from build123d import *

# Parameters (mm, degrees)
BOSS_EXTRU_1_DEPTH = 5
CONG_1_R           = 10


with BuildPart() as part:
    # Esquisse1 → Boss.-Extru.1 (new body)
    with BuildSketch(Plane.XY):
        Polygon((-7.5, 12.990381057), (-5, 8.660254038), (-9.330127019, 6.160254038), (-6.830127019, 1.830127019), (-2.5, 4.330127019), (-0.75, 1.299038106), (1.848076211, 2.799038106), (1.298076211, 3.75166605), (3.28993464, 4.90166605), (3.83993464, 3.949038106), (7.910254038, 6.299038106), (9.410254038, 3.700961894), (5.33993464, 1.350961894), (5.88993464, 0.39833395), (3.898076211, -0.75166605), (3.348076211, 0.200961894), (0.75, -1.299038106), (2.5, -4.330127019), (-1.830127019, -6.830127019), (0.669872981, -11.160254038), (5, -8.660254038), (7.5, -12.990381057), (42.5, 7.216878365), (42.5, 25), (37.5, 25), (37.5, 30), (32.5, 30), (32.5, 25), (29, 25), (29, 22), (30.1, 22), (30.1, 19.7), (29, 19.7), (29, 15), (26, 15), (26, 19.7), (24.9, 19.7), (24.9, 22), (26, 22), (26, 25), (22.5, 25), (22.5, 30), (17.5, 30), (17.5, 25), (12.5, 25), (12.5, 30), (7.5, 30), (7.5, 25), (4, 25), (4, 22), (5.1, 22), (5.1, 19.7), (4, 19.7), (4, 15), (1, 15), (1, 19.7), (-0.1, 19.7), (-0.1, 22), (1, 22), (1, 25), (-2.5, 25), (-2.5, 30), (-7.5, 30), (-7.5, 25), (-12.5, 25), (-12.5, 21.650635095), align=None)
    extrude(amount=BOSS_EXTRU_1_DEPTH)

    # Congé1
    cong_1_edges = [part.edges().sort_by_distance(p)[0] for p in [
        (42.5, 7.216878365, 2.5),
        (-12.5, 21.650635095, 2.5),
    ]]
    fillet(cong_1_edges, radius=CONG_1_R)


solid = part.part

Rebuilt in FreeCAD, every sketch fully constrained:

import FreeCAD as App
import Part
import Sketcher
from FreeCAD import Vector
Q = App.Units.Quantity


def edges_at(feature, points):
    """Names of the edges that pass closest to the given points."""
    edges = feature.Shape.Edges
    near = lambda p: min(range(len(edges)), key=lambda i: edges[i].distToShape(Part.Vertex(*p))[0])
    return sorted({f"Edge{near(p) + 1}" for p in points})

doc = App.newDocument("Part")
params = doc.addObject("Spreadsheet::Sheet", "Params")
for row, (alias, value) in enumerate([
    ("sketch1_width", "5 mm"),
    ("sketch1_width2", "3 mm"),
    ("sketch1_length", "3 mm"),
    ("sketch1_width3", "3.5 mm"),
    ("sketch1_width4", "1.1 mm"),
    ("pad1_length", "5 mm"),
    ("fillet_radius", "10 mm"),
], start=1):
    params.set(f"A{row}", alias)
    params.set(f"B{row}", "=" + value)
    params.setAlias(f"B{row}", alias)

body = doc.addObject("PartDesign::Body", "Body")

# Sketch on XY plane
sketch1 = doc.addObject("Sketcher::SketchObject", "Sketch")
body.addObject(sketch1)
sketch1.AttachmentSupport = (doc.XY_Plane, [""])
sketch1.MapMode = "FlatFace"
sketch1.addGeometry(Part.LineSegment(Vector(-5, 8.7, 0), Vector(-9.3, 6.2, 0)), False)
sketch1.addGeometry(Part.LineSegment(Vector(-9.3, 6.2, 0), Vector(-6.8, 1.8, 0)), False)
sketch1.addGeometry(Part.LineSegment(Vector(-6.8, 1.8, 0), Vector(-2.5, 4.3, 0)), False)
sketch1.addGeometry(Part.LineSegment(Vector(-2.5, 4.3, 0), Vector(-0.8, 1.3, 0)), False)
sketch1.addGeometry(Part.LineSegment(Vector(-0.8, 1.3, 0), Vector(1.8, 2.8, 0)), False)
sketch1.addGeometry(Part.LineSegment(Vector(1.8, 2.8, 0), Vector(1.3, 3.8, 0)), False)
sketch1.addGeometry(Part.LineSegment(Vector(1.3, 3.8, 0), Vector(3.3, 4.9, 0)), False)
sketch1.addGeometry(Part.LineSegment(Vector(3.3, 4.9, 0), Vector(3.8, 3.9, 0)), False)
sketch1.addGeometry(Part.LineSegment(Vector(3.8, 3.9, 0), Vector(7.9, 6.3, 0)), False)
sketch1.addGeometry(Part.LineSegment(Vector(7.9, 6.3, 0), Vector(9.4, 3.7, 0)), False)
sketch1.addGeometry(Part.LineSegment(Vector(9.4, 3.7, 0), Vector(5.3, 1.4, 0)), False)
sketch1.addGeometry(Part.LineSegment(Vector(5.3, 1.4, 0), Vector(5.9, 0.4, 0)), False)
sketch1.addGeometry(Part.LineSegment(Vector(5.9, 0.4, 0), Vector(3.9, -0.8, 0)), False)
sketch1.addGeometry(Part.LineSegment(Vector(3.9, -0.8, 0), Vector(3.3, 0.2, 0)), False)
sketch1.addGeometry(Part.LineSegment(Vector(3.3, 0.2, 0), Vector(0.8, -1.3, 0)), False)
sketch1.addGeometry(Part.LineSegment(Vector(0.8, -1.3, 0), Vector(2.5, -4.3, 0)), False)
sketch1.addGeometry(Part.LineSegment(Vector(2.5, -4.3, 0), Vector(-1.8, -6.8, 0)), False)
sketch1.addGeometry(Part.LineSegment(Vector(-1.8, -6.8, 0), Vector(0.7, -11.2, 0)), False)
sketch1.addGeometry(Part.LineSegment(Vector(0.7, -11.2, 0), Vector(5, -8.7, 0)), False)
sketch1.addGeometry(Part.LineSegment(Vector(5, -8.7, 0), Vector(7.5, -13, 0)), False)
sketch1.addGeometry(Part.LineSegment(Vector(7.5, -13, 0), Vector(42.5, 7.2, 0)), False)
sketch1.addGeometry(Part.LineSegment(Vector(42.5, 7.2, 0), Vector(42.5, 25, 0)), False)
sketch1.addGeometry(Part.LineSegment(Vector(42.5, 25, 0), Vector(37.5, 25, 0)), False)
sketch1.addGeometry(Part.LineSegment(Vector(37.5, 25, 0), Vector(37.5, 30, 0)), False)
sketch1.addGeometry(Part.LineSegment(Vector(37.5, 30, 0), Vector(32.5, 30, 0)), False)
sketch1.addGeometry(Part.LineSegment(Vector(32.5, 30, 0), Vector(32.5, 25, 0)), False)
sketch1.addGeometry(Part.LineSegment(Vector(32.5, 25, 0), Vector(29, 25, 0)), False)
sketch1.addGeometry(Part.LineSegment(Vector(29, 25, 0), Vector(29, 22, 0)), False)
sketch1.addGeometry(Part.LineSegment(Vector(29, 22, 0), Vector(30.1, 22, 0)), False)
sketch1.addGeometry(Part.LineSegment(Vector(30.1, 22, 0), Vector(30.1, 19.7, 0)), False)
sketch1.addGeometry(Part.LineSegment(Vector(30.1, 19.7, 0), Vector(29, 19.7, 0)), False)
sketch1.addGeometry(Part.LineSegment(Vector(29, 19.7, 0), Vector(29, 15, 0)), False)
sketch1.addGeometry(Part.LineSegment(Vector(29, 15, 0), Vector(26, 15, 0)), False)
sketch1.addGeometry(Part.LineSegment(Vector(26, 15, 0), Vector(26, 19.7, 0)), False)
sketch1.addGeometry(Part.LineSegment(Vector(26, 19.7, 0), Vector(24.9, 19.7, 0)), False)
sketch1.addGeometry(Part.LineSegment(Vector(24.9, 19.7, 0), Vector(24.9, 22, 0)), False)
sketch1.addGeometry(Part.LineSegment(Vector(24.9, 22, 0), Vector(26, 22, 0)), False)
sketch1.addGeometry(Part.LineSegment(Vector(26, 22, 0), Vector(26, 25, 0)), False)
sketch1.addGeometry(Part.LineSegment(Vector(26, 25, 0), Vector(22.5, 25, 0)), False)
sketch1.addGeometry(Part.LineSegment(Vector(22.5, 25, 0), Vector(22.5, 30, 0)), False)
sketch1.addGeometry(Part.LineSegment(Vector(22.5, 30, 0), Vector(17.5, 30, 0)), False)
sketch1.addGeometry(Part.LineSegment(Vector(17.5, 30, 0), Vector(17.5, 25, 0)), False)
sketch1.addGeometry(Part.LineSegment(Vector(17.5, 25, 0), Vector(12.5, 25, 0)), False)
sketch1.addGeometry(Part.LineSegment(Vector(12.5, 25, 0), Vector(12.5, 30, 0)), False)
sketch1.addGeometry(Part.LineSegment(Vector(12.5, 30, 0), Vector(7.5, 30, 0)), False)
sketch1.addGeometry(Part.LineSegment(Vector(7.5, 30, 0), Vector(7.5, 25, 0)), False)
sketch1.addGeometry(Part.LineSegment(Vector(7.5, 25, 0), Vector(4, 25, 0)), False)
sketch1.addGeometry(Part.LineSegment(Vector(4, 25, 0), Vector(4, 22, 0)), False)
sketch1.addGeometry(Part.LineSegment(Vector(4, 22, 0), Vector(5.1, 22, 0)), False)
sketch1.addGeometry(Part.LineSegment(Vector(5.1, 22, 0), Vector(5.1, 19.7, 0)), False)
sketch1.addGeometry(Part.LineSegment(Vector(5.1, 19.7, 0), Vector(4, 19.7, 0)), False)
sketch1.addGeometry(Part.LineSegment(Vector(4, 19.7, 0), Vector(4, 15, 0)), False)
sketch1.addGeometry(Part.LineSegment(Vector(4, 15, 0), Vector(1, 15, 0)), False)
sketch1.addGeometry(Part.LineSegment(Vector(1, 15, 0), Vector(1, 19.7, 0)), False)
sketch1.addGeometry(Part.LineSegment(Vector(1, 19.7, 0), Vector(-0.1, 19.7, 0)), False)
sketch1.addGeometry(Part.LineSegment(Vector(-0.1, 19.7, 0), Vector(-0.1, 22, 0)), False)
sketch1.addGeometry(Part.LineSegment(Vector(-0.1, 22, 0), Vector(1, 22, 0)), False)
sketch1.addGeometry(Part.LineSegment(Vector(1, 22, 0), Vector(1, 25, 0)), False)
sketch1.addGeometry(Part.LineSegment(Vector(1, 25, 0), Vector(-2.5, 25, 0)), False)
sketch1.addGeometry(Part.LineSegment(Vector(-2.5, 25, 0), Vector(-2.5, 30, 0)), False)
sketch1.addGeometry(Part.LineSegment(Vector(-2.5, 30, 0), Vector(-7.5, 30, 0)), False)
sketch1.addGeometry(Part.LineSegment(Vector(-7.5, 30, 0), Vector(-7.5, 25, 0)), False)
sketch1.addGeometry(Part.LineSegment(Vector(-7.5, 25, 0), Vector(-12.5, 25, 0)), False)
sketch1.addGeometry(Part.LineSegment(Vector(-12.5, 25, 0), Vector(-12.5, 21.7, 0)), False)
sketch1.addGeometry(Part.LineSegment(Vector(-12.5, 21.7, 0), Vector(-5, 8.7, 0)), False)
sketch1.addConstraint(Sketcher.Constraint("Coincident", 0, 2, 1, 1))
sketch1.addConstraint(Sketcher.Constraint("Coincident", 1, 2, 2, 1))
sketch1.addConstraint(Sketcher.Constraint("Coincident", 2, 2, 3, 1))
sketch1.addConstraint(Sketcher.Constraint("Coincident", 3, 2, 4, 1))
sketch1.addConstraint(Sketcher.Constraint("Coincident", 4, 2, 5, 1))
sketch1.addConstraint(Sketcher.Constraint("Coincident", 5, 2, 6, 1))
sketch1.addConstraint(Sketcher.Constraint("Coincident", 6, 2, 7, 1))
sketch1.addConstraint(Sketcher.Constraint("Coincident", 7, 2, 8, 1))
sketch1.addConstraint(Sketcher.Constraint("Coincident", 8, 2, 9, 1))
sketch1.addConstraint(Sketcher.Constraint("Coincident", 9, 2, 10, 1))
sketch1.addConstraint(Sketcher.Constraint("Coincident", 10, 2, 11, 1))
sketch1.addConstraint(Sketcher.Constraint("Coincident", 11, 2, 12, 1))
sketch1.addConstraint(Sketcher.Constraint("Coincident", 12, 2, 13, 1))
sketch1.addConstraint(Sketcher.Constraint("Coincident", 13, 2, 14, 1))
sketch1.addConstraint(Sketcher.Constraint("Coincident", 14, 2, 15, 1))
sketch1.addConstraint(Sketcher.Constraint("Coincident", 15, 2, 16, 1))
sketch1.addConstraint(Sketcher.Constraint("Coincident", 16, 2, 17, 1))
sketch1.addConstraint(Sketcher.Constraint("Coincident", 17, 2, 18, 1))
sketch1.addConstraint(Sketcher.Constraint("Coincident", 18, 2, 19, 1))
sketch1.addConstraint(Sketcher.Constraint("Coincident", 19, 2, 20, 1))
sketch1.addConstraint(Sketcher.Constraint("Coincident", 20, 2, 21, 1))
sketch1.addConstraint(Sketcher.Constraint("Coincident", 21, 2, 22, 1))
sketch1.addConstraint(Sketcher.Constraint("Coincident", 22, 2, 23, 1))
sketch1.addConstraint(Sketcher.Constraint("Coincident", 23, 2, 24, 1))
sketch1.addConstraint(Sketcher.Constraint("Coincident", 24, 2, 25, 1))
sketch1.addConstraint(Sketcher.Constraint("Coincident", 25, 2, 26, 1))
sketch1.addConstraint(Sketcher.Constraint("Coincident", 26, 2, 27, 1))
sketch1.addConstraint(Sketcher.Constraint("Coincident", 27, 2, 28, 1))
sketch1.addConstraint(Sketcher.Constraint("Coincident", 28, 2, 29, 1))
sketch1.addConstraint(Sketcher.Constraint("Coincident", 29, 2, 30, 1))
sketch1.addConstraint(Sketcher.Constraint("Coincident", 30, 2, 31, 1))
sketch1.addConstraint(Sketcher.Constraint("Coincident", 31, 2, 32, 1))
sketch1.addConstraint(Sketcher.Constraint("Coincident", 32, 2, 33, 1))
sketch1.addConstraint(Sketcher.Constraint("Coincident", 33, 2, 34, 1))
sketch1.addConstraint(Sketcher.Constraint("Coincident", 34, 2, 35, 1))
sketch1.addConstraint(Sketcher.Constraint("Coincident", 35, 2, 36, 1))
sketch1.addConstraint(Sketcher.Constraint("Coincident", 36, 2, 37, 1))
sketch1.addConstraint(Sketcher.Constraint("Coincident", 37, 2, 38, 1))
sketch1.addConstraint(Sketcher.Constraint("Coincident", 38, 2, 39, 1))
sketch1.addConstraint(Sketcher.Constraint("Coincident", 39, 2, 40, 1))
sketch1.addConstraint(Sketcher.Constraint("Coincident", 40, 2, 41, 1))
sketch1.addConstraint(Sketcher.Constraint("Coincident", 41, 2, 42, 1))
sketch1.addConstraint(Sketcher.Constraint("Coincident", 42, 2, 43, 1))
sketch1.addConstraint(Sketcher.Constraint("Coincident", 43, 2, 44, 1))
sketch1.addConstraint(Sketcher.Constraint("Coincident", 44, 2, 45, 1))
sketch1.addConstraint(Sketcher.Constraint("Coincident", 45, 2, 46, 1))
sketch1.addConstraint(Sketcher.Constraint("Coincident", 46, 2, 47, 1))
sketch1.addConstraint(Sketcher.Constraint("Coincident", 47, 2, 48, 1))
sketch1.addConstraint(Sketcher.Constraint("Coincident", 48, 2, 49, 1))
sketch1.addConstraint(Sketcher.Constraint("Coincident", 49, 2, 50, 1))
sketch1.addConstraint(Sketcher.Constraint("Coincident", 50, 2, 51, 1))
sketch1.addConstraint(Sketcher.Constraint("Coincident", 51, 2, 52, 1))
sketch1.addConstraint(Sketcher.Constraint("Coincident", 52, 2, 53, 1))
sketch1.addConstraint(Sketcher.Constraint("Coincident", 53, 2, 54, 1))
sketch1.addConstraint(Sketcher.Constraint("Coincident", 54, 2, 55, 1))
sketch1.addConstraint(Sketcher.Constraint("Coincident", 55, 2, 56, 1))
sketch1.addConstraint(Sketcher.Constraint("Coincident", 56, 2, 57, 1))
sketch1.addConstraint(Sketcher.Constraint("Coincident", 57, 2, 58, 1))
sketch1.addConstraint(Sketcher.Constraint("Coincident", 58, 2, 59, 1))
sketch1.addConstraint(Sketcher.Constraint("Coincident", 59, 2, 60, 1))
sketch1.addConstraint(Sketcher.Constraint("Coincident", 60, 2, 61, 1))
sketch1.addConstraint(Sketcher.Constraint("Coincident", 61, 2, 62, 1))
sketch1.addConstraint(Sketcher.Constraint("Coincident", 62, 2, 63, 1))
sketch1.addConstraint(Sketcher.Constraint("Coincident", 63, 2, 64, 1))
sketch1.addConstraint(Sketcher.Constraint("Coincident", 64, 2, 0, 1))
sketch1.addConstraint(Sketcher.Constraint("Vertical", 21))
sketch1.addConstraint(Sketcher.Constraint("Horizontal", 22))
sketch1.addConstraint(Sketcher.Constraint("Vertical", 23))
sketch1.addConstraint(Sketcher.Constraint("Horizontal", 24))
sketch1.addConstraint(Sketcher.Constraint("Vertical", 25))
sketch1.addConstraint(Sketcher.Constraint("Horizontal", 26))
sketch1.addConstraint(Sketcher.Constraint("Vertical", 27))
sketch1.addConstraint(Sketcher.Constraint("Horizontal", 28))
sketch1.addConstraint(Sketcher.Constraint("Vertical", 29))
sketch1.addConstraint(Sketcher.Constraint("Horizontal", 30))
sketch1.addConstraint(Sketcher.Constraint("Vertical", 31))
sketch1.addConstraint(Sketcher.Constraint("Horizontal", 32))
sketch1.addConstraint(Sketcher.Constraint("Vertical", 33))
sketch1.addConstraint(Sketcher.Constraint("Horizontal", 34))
sketch1.addConstraint(Sketcher.Constraint("Vertical", 35))
sketch1.addConstraint(Sketcher.Constraint("Horizontal", 36))
sketch1.addConstraint(Sketcher.Constraint("Vertical", 37))
sketch1.addConstraint(Sketcher.Constraint("Horizontal", 38))
sketch1.addConstraint(Sketcher.Constraint("Vertical", 39))
sketch1.addConstraint(Sketcher.Constraint("Horizontal", 40))
sketch1.addConstraint(Sketcher.Constraint("Vertical", 41))
sketch1.addConstraint(Sketcher.Constraint("Horizontal", 42))
sketch1.addConstraint(Sketcher.Constraint("Vertical", 43))
sketch1.addConstraint(Sketcher.Constraint("Horizontal", 44))
sketch1.addConstraint(Sketcher.Constraint("Vertical", 45))
sketch1.addConstraint(Sketcher.Constraint("Horizontal", 46))
sketch1.addConstraint(Sketcher.Constraint("Vertical", 47))
sketch1.addConstraint(Sketcher.Constraint("Horizontal", 48))
sketch1.addConstraint(Sketcher.Constraint("Vertical", 49))
sketch1.addConstraint(Sketcher.Constraint("Horizontal", 50))
sketch1.addConstraint(Sketcher.Constraint("Vertical", 51))
sketch1.addConstraint(Sketcher.Constraint("Horizontal", 52))
sketch1.addConstraint(Sketcher.Constraint("Vertical", 53))
sketch1.addConstraint(Sketcher.Constraint("Horizontal", 54))
sketch1.addConstraint(Sketcher.Constraint("Vertical", 55))
sketch1.addConstraint(Sketcher.Constraint("Horizontal", 56))
sketch1.addConstraint(Sketcher.Constraint("Vertical", 57))
sketch1.addConstraint(Sketcher.Constraint("Horizontal", 58))
sketch1.addConstraint(Sketcher.Constraint("Vertical", 59))
sketch1.addConstraint(Sketcher.Constraint("Horizontal", 60))
sketch1.addConstraint(Sketcher.Constraint("Vertical", 61))
sketch1.addConstraint(Sketcher.Constraint("Horizontal", 62))
sketch1.addConstraint(Sketcher.Constraint("Vertical", 63))
sketch1.addConstraint(Sketcher.Constraint("Symmetric", 3, 2, 14, 2, -1, 1))
sketch1.addConstraint(Sketcher.Constraint("Symmetric", 2, 2, 15, 2, -1, 1))
sketch1.addConstraint(Sketcher.Constraint("Symmetric", 18, 2, 64, 2, -1, 1))
sketch1.addConstraint(Sketcher.Constraint("Symmetric", 44, 2, 60, 2, -2))
sketch1.addConstraint(Sketcher.Constraint("Symmetric", 42, 2, 62, 2, -2))
sketch1.addConstraint(Sketcher.Constraint("Perpendicular", 0, 1))
sketch1.addConstraint(Sketcher.Constraint("Perpendicular", 1, 2))
sketch1.addConstraint(Sketcher.Constraint("Perpendicular", 2, 3))
sketch1.addConstraint(Sketcher.Constraint("Perpendicular", 3, 4))
sketch1.addConstraint(Sketcher.Constraint("Perpendicular", 4, 5))
sketch1.addConstraint(Sketcher.Constraint("Perpendicular", 5, 6))
sketch1.addConstraint(Sketcher.Constraint("Perpendicular", 6, 7))
sketch1.addConstraint(Sketcher.Constraint("Perpendicular", 7, 8))
sketch1.addConstraint(Sketcher.Constraint("Perpendicular", 8, 9))
sketch1.addConstraint(Sketcher.Constraint("Perpendicular", 9, 10))
sketch1.addConstraint(Sketcher.Constraint("Perpendicular", 10, 11))
sketch1.addConstraint(Sketcher.Constraint("Perpendicular", 11, 12))
sketch1.addConstraint(Sketcher.Constraint("Perpendicular", 12, 13))
sketch1.addConstraint(Sketcher.Constraint("Perpendicular", 13, 14))
sketch1.addConstraint(Sketcher.Constraint("Perpendicular", 15, 16))
sketch1.addConstraint(Sketcher.Constraint("Perpendicular", 16, 17))
sketch1.addConstraint(Sketcher.Constraint("Perpendicular", 17, 18))
sketch1.addConstraint(Sketcher.Constraint("Perpendicular", 18, 19))
sketch1.addConstraint(Sketcher.Constraint("Perpendicular", 19, 20))
sketch1.addConstraint(Sketcher.Constraint("Perpendicular", 20, 64))
sketch1.addConstraint(Sketcher.Constraint("Horizontal", 22, 2, 25, 2))
sketch1.addConstraint(Sketcher.Constraint("Horizontal", 30, 2, 33, 2))
sketch1.addConstraint(Sketcher.Constraint("Horizontal", 28, 2, 35, 2))
sketch1.addConstraint(Sketcher.Constraint("Horizontal", 26, 2, 37, 2))
sketch1.addConstraint(Sketcher.Constraint("Horizontal", 24, 2, 39, 2))
sketch1.addConstraint(Sketcher.Constraint("Horizontal", 38, 2, 41, 2))
sketch1.addConstraint(Sketcher.Constraint("Horizontal", 40, 2, 43, 2))
sketch1.addConstraint(Sketcher.Constraint("Horizontal", 42, 2, 45, 2))
sketch1.addConstraint(Sketcher.Constraint("Horizontal", 36, 2, 47, 2))
sketch1.addConstraint(Sketcher.Constraint("Horizontal", 34, 2, 49, 2))
sketch1.addConstraint(Sketcher.Constraint("Horizontal", 32, 2, 51, 2))
sketch1.addConstraint(Sketcher.Constraint("Horizontal", 50, 2, 53, 2))
sketch1.addConstraint(Sketcher.Constraint("Horizontal", 48, 2, 55, 2))
sketch1.addConstraint(Sketcher.Constraint("Horizontal", 46, 2, 57, 2))
sketch1.addConstraint(Sketcher.Constraint("Vertical", 27, 2, 30, 2))
sketch1.addConstraint(Sketcher.Constraint("Vertical", 33, 2, 36, 2))
sketch1.addConstraint(Sketcher.Constraint("Vertical", 19, 2, 44, 2))
sketch1.addConstraint(Sketcher.Constraint("Vertical", 47, 2, 50, 2))
sketch1.addConstraint(Sketcher.Constraint("Vertical", 53, 2, 56, 2))
sketch1.addConstraint(Sketcher.Constraint("Vertical", 2, 2, 58, 2))
sketch1.addConstraint(Sketcher.Constraint("Equal", 22, 24))
sketch1.addConstraint(Sketcher.Constraint("Equal", 30, 34))
sketch1.addConstraint(Sketcher.Constraint("Equal", 26, 38))
sketch1.addConstraint(Sketcher.Constraint("Equal", 24, 40))
sketch1.addConstraint(Sketcher.Constraint("Equal", 40, 42))
sketch1.addConstraint(Sketcher.Constraint("Equal", 42, 44))
sketch1.addConstraint(Sketcher.Constraint("Equal", 38, 46))
sketch1.addConstraint(Sketcher.Constraint("Equal", 36, 48))
sketch1.addConstraint(Sketcher.Constraint("Equal", 32, 52))
sketch1.addConstraint(Sketcher.Constraint("Equal", 50, 54))
sketch1.addConstraint(Sketcher.Constraint("Equal", 46, 58))
sketch1.addConstraint(Sketcher.Constraint("Equal", 44, 60))
sketch1.addConstraint(Sketcher.Constraint("Equal", 62, 23))
sketch1.addConstraint(Sketcher.Constraint("Equal", 52, 27))
sketch1.addConstraint(Sketcher.Constraint("Equal", 0, 1))
sketch1.addConstraint(Sketcher.Constraint("Equal", 1, 2))
sketch1.addConstraint(Sketcher.Constraint("Equal", 5, 7))
sketch1.addConstraint(Sketcher.Constraint("Equal", 4, 9))
sketch1.addConstraint(Sketcher.Constraint("Equal", 8, 10))
sketch1.addConstraint(Sketcher.Constraint("Equal", 7, 11))
sketch1.addConstraint(Sketcher.Constraint("Equal", 6, 12))
sketch1.addConstraint(Sketcher.Constraint("Equal", 11, 13))
sketch1.addConstraint(Sketcher.Constraint("Equal", 9, 14))
sketch1.addConstraint(Sketcher.Constraint("Equal", 2, 16))
sketch1.addConstraint(Sketcher.Constraint("Equal", 18, 19))
sketch1.addConstraint(Sketcher.Constraint("DistanceX", 22, 2, 22, 1, 5.0))
sketch1.addConstraint(Sketcher.Constraint("DistanceX", 32, 2, 32, 1, 3.0))
sketch1.addConstraint(Sketcher.Constraint("Angle", 0, Q("-150 deg")))
sketch1.addConstraint(Sketcher.Constraint("Distance", 4, 3.0))
sketch1.addConstraint(Sketcher.Constraint("DistanceX", 26, 2, 26, 1, 3.5))
sketch1.addConstraint(Sketcher.Constraint("DistanceX", 28, 1, 28, 2, 1.1))
sketch1.addConstraint(Sketcher.Constraint("DistanceY", 29, 2, 29, 1, 2.3))
sketch1.addConstraint(Sketcher.Constraint("DistanceY", 31, 2, 31, 1, 4.7))
sketch1.addConstraint(Sketcher.Constraint("DistanceY", -1, 1, 21, 2, 25.0))
sketch1.addConstraint(Sketcher.Constraint("Distance", 5, 1.1))
sketch1.addConstraint(Sketcher.Constraint("Distance", 6, 2.3))
sketch1.addConstraint(Sketcher.Constraint("Distance", 8, 4.7))
sketch1.setExpression("Constraints[178]", "Params.sketch1_width")
sketch1.setExpression("Constraints[179]", "Params.sketch1_width2")
sketch1.setExpression("Constraints[181]", "Params.sketch1_length")
sketch1.setExpression("Constraints[182]", "Params.sketch1_width3")
sketch1.setExpression("Constraints[183]", "Params.sketch1_width4")
pad1 = doc.addObject("PartDesign::Pad", "Pad")
body.addObject(pad1)
pad1.Profile = sketch1
pad1.setExpression("Length", "Params.pad1_length")
doc.recompute()

fillet = doc.addObject("PartDesign::Fillet", "Fillet")
body.addObject(fillet)
fillet.Base = (pad1, edges_at(pad1, [(42.5, 7.217, 2.5), (-12.5, 21.651, 2.5)]))
fillet.setExpression("Radius", "Params.fillet_radius")

doc.recompute()
